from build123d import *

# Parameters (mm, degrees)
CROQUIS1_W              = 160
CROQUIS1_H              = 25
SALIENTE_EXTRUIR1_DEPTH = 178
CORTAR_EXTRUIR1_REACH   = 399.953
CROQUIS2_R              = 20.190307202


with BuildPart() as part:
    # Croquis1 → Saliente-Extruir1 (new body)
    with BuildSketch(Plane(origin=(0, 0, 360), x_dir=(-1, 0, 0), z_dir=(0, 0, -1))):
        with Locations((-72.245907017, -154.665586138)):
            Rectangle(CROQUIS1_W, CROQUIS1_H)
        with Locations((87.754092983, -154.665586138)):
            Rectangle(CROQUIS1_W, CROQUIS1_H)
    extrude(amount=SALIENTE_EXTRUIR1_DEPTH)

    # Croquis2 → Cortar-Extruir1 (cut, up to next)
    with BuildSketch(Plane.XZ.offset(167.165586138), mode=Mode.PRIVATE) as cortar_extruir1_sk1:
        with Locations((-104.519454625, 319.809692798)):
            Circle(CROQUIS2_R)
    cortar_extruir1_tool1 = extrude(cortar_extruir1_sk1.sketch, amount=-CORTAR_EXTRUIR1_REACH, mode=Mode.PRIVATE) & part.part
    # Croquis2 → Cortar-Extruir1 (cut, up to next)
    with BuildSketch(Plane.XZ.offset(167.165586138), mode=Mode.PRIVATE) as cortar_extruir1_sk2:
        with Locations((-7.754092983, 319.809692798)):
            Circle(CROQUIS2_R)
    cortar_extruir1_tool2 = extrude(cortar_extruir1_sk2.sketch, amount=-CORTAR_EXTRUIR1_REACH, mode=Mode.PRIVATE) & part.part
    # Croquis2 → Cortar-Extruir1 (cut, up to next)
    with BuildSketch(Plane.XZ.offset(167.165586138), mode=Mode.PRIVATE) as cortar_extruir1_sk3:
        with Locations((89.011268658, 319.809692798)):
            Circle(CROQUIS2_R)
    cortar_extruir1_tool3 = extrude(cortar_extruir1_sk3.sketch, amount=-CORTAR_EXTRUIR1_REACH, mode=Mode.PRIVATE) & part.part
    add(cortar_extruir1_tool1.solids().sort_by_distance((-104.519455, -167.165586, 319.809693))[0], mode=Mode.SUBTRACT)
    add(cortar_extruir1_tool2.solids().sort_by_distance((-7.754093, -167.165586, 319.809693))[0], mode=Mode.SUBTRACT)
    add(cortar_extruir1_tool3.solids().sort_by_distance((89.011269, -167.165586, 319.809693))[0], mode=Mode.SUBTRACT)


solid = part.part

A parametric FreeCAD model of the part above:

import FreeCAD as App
import Part
import Sketcher
from FreeCAD import Vector
Q = App.Units.Quantity

doc = App.newDocument("Part")
params = doc.addObject("Spreadsheet::Sheet", "Params")
for row, (alias, value) in enumerate([
    ("sketch1_width", "320 mm"),
    ("sketch1_height", "25 mm"),
    ("pad1_length", "178 mm"),
], start=1):
    params.set(f"A{row}", alias)
    params.set(f"B{row}", "=" + value)
    params.setAlias(f"B{row}", alias)

body = doc.addObject("PartDesign::Body", "Body")

sketch1 = body.newObject("Sketcher::SketchObject", "Sketch")
sketch1.AttachmentSupport = (doc.getObject("XY_Plane"), [""])
sketch1.MapMode = "FlatFace"
sketch1.AttachmentOffset = App.Placement(Vector(0, 0, 360), App.Rotation())
sketch1.addGeometry([
    Part.LineSegment(Vector(152.245907, -142.165586, 0), Vector(152.245907, -167.165586, 0)),
    Part.LineSegment(Vector(152.245907, -167.165586, 0), Vector(-167.754093, -167.165586, 0)),
    Part.LineSegment(Vector(-167.754093, -167.165586, 0), Vector(-167.754093, -142.165586, 0)),
    Part.LineSegment(Vector(-167.754093, -142.165586, 0), Vector(152.245907, -142.165586, 0)),
], False)
sketch1.addConstraint([
    Sketcher.Constraint("Coincident", 0, 2, 1, 1),
    Sketcher.Constraint("Coincident", 1, 2, 2, 1),
    Sketcher.Constraint("Coincident", 2, 2, 3, 1),
    Sketcher.Constraint("Coincident", 3, 2, 0, 1),
    Sketcher.Constraint("Vertical", 0),
    Sketcher.Constraint("Horizontal", 1),
    Sketcher.Constraint("Vertical", 2),
    Sketcher.Constraint("Horizontal", 3),
    Sketcher.Constraint("DistanceX", 1, 2, 1, 1, Q("320 mm")),
    Sketcher.Constraint("DistanceY", 0, 2, 0, 1, Q("25 mm")),
    Sketcher.Constraint("DistanceX", -1, 1, 0, 2, Q("152.245907 mm")),
    Sketcher.Constraint("DistanceY", 0, 2, -1, 1, Q("167.165586 mm")),
])
sketch1.setExpression("Constraints[8]", "Params.sketch1_width")
sketch1.setExpression("Constraints[9]", "Params.sketch1_height")
pad1 = body.newObject("PartDesign::Pad", "Pad")
pad1.Profile = sketch1
pad1.setExpression("Length", "Params.pad1_length")
pad1.Reversed = True

sketch2 = body.newObject("Sketcher::SketchObject", "Sketch001")
sketch2.AttachmentSupport = (doc.getObject("XZ_Plane"), [""])
sketch2.MapMode = "FlatFace"
sketch2.AttachmentOffset = App.Placement(Vector(0, 0, 167.165586), App.Rotation())
sketch2.addGeometry(Part.Circle(Vector(-104.519455, 319.809693, 0), Vector(0, 0, 1), 20.190307), False)
sketch2.addConstraint([
    Sketcher.Constraint("Diameter", 0, Q("40.380614 mm")),
    Sketcher.Constraint("DistanceX", 0, 3, -1, 1, Q("104.519455 mm")),
    Sketcher.Constraint("DistanceY", -1, 1, 0, 3, Q("319.809693 mm")),
])
pocket1 = body.newObject("PartDesign::Pocket", "Pocket")
pocket1.Profile = sketch2
pocket1.Type = "UpToFirst"

sketch3 = body.newObject("Sketcher::SketchObject", "Sketch002")
sketch3.AttachmentSupport = (doc.getObject("XZ_Plane"), [""])
sketch3.MapMode = "FlatFace"
sketch3.AttachmentOffset = App.Placement(Vector(0, 0, 167.165586), App.Rotation())
sketch3.addGeometry(Part.Circle(Vector(-7.754093, 319.809693, 0), Vector(0, 0, 1), 20.190307), False)
sketch3.addConstraint([
    Sketcher.Constraint("Diameter", 0, Q("40.380614 mm")),
    Sketcher.Constraint("DistanceX", 0, 3, -1, 1, Q("7.754093 mm")),
    Sketcher.Constraint("DistanceY", -1, 1, 0, 3, Q("319.809693 mm")),
])
pocket2 = body.newObject("PartDesign::Pocket", "Pocket001")
pocket2.Profile = sketch3
pocket2.Type = "UpToFirst"

sketch4 = body.newObject("Sketcher::SketchObject", "Sketch003")
sketch4.AttachmentSupport = (doc.getObject("XZ_Plane"), [""])
sketch4.MapMode = "FlatFace"
sketch4.AttachmentOffset = App.Placement(Vector(0, 0, 167.165586), App.Rotation())
sketch4.addGeometry(Part.Circle(Vector(89.011269, 319.809693, 0), Vector(0, 0, 1), 20.190307), False)
sketch4.addConstraint([
    Sketcher.Constraint("Diameter", 0, Q("40.380614 mm")),
    Sketcher.Constraint("DistanceX", -1, 1, 0, 3, Q("89.011269 mm")),
    Sketcher.Constraint("DistanceY", -1, 1, 0, 3, Q("319.809693 mm")),
])
pocket3 = body.newObject("PartDesign::Pocket", "Pocket002")
pocket3.Profile = sketch4
pocket3.Type = "UpToFirst"

doc.recompute()
